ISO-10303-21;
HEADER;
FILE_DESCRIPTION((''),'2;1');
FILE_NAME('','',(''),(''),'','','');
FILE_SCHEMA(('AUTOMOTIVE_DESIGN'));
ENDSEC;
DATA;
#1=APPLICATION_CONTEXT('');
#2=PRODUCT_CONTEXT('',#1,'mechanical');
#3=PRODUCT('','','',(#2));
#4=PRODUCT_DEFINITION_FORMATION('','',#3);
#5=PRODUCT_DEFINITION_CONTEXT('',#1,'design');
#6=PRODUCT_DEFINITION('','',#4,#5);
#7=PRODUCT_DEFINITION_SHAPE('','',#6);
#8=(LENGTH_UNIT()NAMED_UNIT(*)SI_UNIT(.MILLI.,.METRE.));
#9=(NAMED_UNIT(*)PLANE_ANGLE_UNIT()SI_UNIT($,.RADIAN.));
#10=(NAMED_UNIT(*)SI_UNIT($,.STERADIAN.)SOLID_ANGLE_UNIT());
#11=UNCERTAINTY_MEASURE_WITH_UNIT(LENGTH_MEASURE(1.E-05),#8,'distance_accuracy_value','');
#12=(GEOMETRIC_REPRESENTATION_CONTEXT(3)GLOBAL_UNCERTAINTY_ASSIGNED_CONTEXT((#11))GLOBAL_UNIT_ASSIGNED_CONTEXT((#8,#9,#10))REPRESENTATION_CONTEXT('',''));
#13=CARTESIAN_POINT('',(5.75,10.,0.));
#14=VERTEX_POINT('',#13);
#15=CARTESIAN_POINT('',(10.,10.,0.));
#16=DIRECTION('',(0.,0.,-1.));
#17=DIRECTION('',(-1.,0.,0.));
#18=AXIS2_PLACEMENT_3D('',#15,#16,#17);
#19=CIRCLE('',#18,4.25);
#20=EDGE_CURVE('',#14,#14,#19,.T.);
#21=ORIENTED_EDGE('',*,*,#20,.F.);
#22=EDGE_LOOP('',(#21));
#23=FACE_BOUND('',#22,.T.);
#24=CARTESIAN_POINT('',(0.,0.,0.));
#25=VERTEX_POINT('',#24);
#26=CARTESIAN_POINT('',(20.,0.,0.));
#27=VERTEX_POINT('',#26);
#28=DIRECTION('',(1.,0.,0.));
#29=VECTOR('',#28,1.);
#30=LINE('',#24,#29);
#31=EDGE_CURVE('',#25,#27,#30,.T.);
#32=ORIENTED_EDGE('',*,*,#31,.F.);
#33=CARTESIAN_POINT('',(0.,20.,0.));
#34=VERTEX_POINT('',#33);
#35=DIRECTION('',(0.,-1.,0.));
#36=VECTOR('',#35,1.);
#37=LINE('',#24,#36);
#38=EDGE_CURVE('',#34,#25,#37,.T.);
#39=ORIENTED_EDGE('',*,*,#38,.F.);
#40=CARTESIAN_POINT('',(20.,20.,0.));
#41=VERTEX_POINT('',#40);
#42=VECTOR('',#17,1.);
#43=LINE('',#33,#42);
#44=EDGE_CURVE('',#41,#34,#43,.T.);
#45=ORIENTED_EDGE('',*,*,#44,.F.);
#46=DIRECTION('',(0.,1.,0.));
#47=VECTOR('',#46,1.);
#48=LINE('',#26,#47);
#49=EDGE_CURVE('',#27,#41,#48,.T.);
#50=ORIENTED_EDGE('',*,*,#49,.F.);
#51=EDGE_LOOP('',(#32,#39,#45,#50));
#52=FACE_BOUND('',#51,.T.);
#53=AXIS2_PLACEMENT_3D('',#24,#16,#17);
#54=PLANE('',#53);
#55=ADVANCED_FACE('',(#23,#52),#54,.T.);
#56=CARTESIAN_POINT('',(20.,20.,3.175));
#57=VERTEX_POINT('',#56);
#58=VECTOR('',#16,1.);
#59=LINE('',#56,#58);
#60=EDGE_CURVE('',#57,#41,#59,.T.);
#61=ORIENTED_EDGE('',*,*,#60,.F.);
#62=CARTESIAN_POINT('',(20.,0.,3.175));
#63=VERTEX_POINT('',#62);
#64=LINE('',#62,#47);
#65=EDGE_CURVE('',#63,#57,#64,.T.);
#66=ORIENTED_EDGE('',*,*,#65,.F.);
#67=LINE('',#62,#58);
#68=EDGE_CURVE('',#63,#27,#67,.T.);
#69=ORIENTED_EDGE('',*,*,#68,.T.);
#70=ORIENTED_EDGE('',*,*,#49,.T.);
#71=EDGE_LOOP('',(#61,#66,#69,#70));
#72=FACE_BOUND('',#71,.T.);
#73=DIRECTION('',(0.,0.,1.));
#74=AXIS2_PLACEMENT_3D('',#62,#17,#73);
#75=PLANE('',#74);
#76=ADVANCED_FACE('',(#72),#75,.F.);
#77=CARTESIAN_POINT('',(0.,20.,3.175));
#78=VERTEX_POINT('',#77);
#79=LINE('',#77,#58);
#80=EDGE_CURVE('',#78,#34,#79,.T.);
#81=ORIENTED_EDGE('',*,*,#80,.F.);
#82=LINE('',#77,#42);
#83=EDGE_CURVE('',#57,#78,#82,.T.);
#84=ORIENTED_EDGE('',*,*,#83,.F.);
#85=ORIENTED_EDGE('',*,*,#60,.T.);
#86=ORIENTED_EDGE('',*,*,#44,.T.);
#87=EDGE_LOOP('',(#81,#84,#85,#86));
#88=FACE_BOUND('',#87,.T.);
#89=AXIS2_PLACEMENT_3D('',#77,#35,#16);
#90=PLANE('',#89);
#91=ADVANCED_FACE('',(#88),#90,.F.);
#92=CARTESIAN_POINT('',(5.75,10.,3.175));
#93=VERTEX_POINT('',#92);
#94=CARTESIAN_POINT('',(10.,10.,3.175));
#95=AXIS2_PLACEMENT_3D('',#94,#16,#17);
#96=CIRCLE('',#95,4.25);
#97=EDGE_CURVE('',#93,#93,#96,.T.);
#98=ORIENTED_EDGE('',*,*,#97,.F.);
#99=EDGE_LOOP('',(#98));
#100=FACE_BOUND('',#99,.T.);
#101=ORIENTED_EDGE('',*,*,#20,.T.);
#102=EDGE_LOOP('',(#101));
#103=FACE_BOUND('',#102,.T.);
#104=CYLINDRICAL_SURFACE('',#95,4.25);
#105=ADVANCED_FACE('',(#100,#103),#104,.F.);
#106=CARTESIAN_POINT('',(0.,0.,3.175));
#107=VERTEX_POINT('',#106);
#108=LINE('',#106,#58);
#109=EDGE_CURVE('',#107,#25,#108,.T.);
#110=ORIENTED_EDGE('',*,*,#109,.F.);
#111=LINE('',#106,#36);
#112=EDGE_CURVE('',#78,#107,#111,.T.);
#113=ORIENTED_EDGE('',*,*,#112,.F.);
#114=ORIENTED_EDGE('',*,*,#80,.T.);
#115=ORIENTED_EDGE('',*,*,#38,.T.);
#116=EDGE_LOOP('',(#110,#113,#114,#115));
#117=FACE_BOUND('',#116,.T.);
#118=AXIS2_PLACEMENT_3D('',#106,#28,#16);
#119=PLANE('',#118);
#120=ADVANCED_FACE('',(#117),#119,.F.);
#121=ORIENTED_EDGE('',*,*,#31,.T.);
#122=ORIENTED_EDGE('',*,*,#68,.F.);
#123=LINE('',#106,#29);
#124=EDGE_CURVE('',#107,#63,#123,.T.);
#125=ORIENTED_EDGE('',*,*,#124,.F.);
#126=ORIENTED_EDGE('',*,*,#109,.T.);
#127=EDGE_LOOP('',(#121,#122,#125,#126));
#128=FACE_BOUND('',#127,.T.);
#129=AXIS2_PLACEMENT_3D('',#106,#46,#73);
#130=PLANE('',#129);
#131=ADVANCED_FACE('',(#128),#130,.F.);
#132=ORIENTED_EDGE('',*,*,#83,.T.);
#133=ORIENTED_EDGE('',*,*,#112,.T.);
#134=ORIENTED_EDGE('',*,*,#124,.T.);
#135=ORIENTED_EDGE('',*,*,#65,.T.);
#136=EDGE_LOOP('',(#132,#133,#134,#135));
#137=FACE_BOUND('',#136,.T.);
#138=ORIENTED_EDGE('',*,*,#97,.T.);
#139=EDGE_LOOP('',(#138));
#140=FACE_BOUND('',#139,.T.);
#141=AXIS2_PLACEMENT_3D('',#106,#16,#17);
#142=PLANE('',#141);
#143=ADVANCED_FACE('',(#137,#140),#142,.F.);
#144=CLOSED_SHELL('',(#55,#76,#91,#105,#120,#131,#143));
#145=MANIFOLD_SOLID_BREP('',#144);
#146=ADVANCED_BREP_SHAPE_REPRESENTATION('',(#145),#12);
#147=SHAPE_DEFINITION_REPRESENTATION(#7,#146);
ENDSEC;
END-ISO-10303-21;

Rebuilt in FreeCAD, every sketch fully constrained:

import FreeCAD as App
import Part
import Sketcher
from FreeCAD import Vector

doc = App.newDocument("Part")
body = doc.addObject("PartDesign::Body", "Body")

sketch1 = doc.addObject("Sketcher::SketchObject", "Sketch")
body.addObject(sketch1)
sketch1.AttachmentSupport = (doc.XY_Plane, [""])
sketch1.MapMode = "FlatFace"
sketch1.addGeometry(Part.LineSegment(Vector(0, 20, 0), Vector(0, 0, 0)), False)
sketch1.addGeometry(Part.LineSegment(Vector(0, 0, 0), Vector(20, 0, 0)), False)
sketch1.addGeometry(Part.LineSegment(Vector(20, 0, 0), Vector(20, 20, 0)), False)
sketch1.addGeometry(Part.LineSegment(Vector(20, 20, 0), Vector(0, 20, 0)), False)
sketch1.addConstraint(Sketcher.Constraint("Coincident", 0, 2, 1, 1))
sketch1.addConstraint(Sketcher.Constraint("Coincident", 1, 2, 2, 1))
sketch1.addConstraint(Sketcher.Constraint("Coincident", 2, 2, 3, 1))
sketch1.addConstraint(Sketcher.Constraint("Coincident", 3, 2, 0, 1))
sketch1.addConstraint(Sketcher.Constraint("Vertical", 0))
sketch1.addConstraint(Sketcher.Constraint("Horizontal", 1))
sketch1.addConstraint(Sketcher.Constraint("Vertical", 2))
sketch1.addConstraint(Sketcher.Constraint("Horizontal", 3))
sketch1.addConstraint(Sketcher.Constraint("Coincident", 0, 2, -1, 1))
sketch1.addConstraint(Sketcher.Constraint("Equal", 3, 0))
sketch1.addConstraint(Sketcher.Constraint("DistanceX", 1, 1, 1, 2, 20.0))
pad1 = doc.addObject("PartDesign::Pad", "Pad")
body.addObject(pad1)
pad1.Profile = sketch1
pad1.Length = 3.175

sketch2 = doc.addObject("Sketcher::SketchObject", "Sketch001")
body.addObject(sketch2)
sketch2.AttachmentSupport = (doc.XY_Plane, [""])
sketch2.MapMode = "FlatFace"
sketch2.addGeometry(Part.Circle(Vector(10, 10, 0), Vector(0, 0, 1), 4.25), False)
sketch2.addConstraint(Sketcher.Constraint("Diameter", 0, 8.5))
sketch2.addConstraint(Sketcher.Constraint("DistanceX", -1, 1, 0, 3, 10.0))
sketch2.addConstraint(Sketcher.Constraint("DistanceY", -1, 1, 0, 3, 10.0))
pocket1 = doc.addObject("PartDesign::Pocket", "Pocket")
body.addObject(pocket1)
pocket1.Profile = sketch2
pocket1.Length = 3.175
pocket1.Reversed = True

doc.recompute()
